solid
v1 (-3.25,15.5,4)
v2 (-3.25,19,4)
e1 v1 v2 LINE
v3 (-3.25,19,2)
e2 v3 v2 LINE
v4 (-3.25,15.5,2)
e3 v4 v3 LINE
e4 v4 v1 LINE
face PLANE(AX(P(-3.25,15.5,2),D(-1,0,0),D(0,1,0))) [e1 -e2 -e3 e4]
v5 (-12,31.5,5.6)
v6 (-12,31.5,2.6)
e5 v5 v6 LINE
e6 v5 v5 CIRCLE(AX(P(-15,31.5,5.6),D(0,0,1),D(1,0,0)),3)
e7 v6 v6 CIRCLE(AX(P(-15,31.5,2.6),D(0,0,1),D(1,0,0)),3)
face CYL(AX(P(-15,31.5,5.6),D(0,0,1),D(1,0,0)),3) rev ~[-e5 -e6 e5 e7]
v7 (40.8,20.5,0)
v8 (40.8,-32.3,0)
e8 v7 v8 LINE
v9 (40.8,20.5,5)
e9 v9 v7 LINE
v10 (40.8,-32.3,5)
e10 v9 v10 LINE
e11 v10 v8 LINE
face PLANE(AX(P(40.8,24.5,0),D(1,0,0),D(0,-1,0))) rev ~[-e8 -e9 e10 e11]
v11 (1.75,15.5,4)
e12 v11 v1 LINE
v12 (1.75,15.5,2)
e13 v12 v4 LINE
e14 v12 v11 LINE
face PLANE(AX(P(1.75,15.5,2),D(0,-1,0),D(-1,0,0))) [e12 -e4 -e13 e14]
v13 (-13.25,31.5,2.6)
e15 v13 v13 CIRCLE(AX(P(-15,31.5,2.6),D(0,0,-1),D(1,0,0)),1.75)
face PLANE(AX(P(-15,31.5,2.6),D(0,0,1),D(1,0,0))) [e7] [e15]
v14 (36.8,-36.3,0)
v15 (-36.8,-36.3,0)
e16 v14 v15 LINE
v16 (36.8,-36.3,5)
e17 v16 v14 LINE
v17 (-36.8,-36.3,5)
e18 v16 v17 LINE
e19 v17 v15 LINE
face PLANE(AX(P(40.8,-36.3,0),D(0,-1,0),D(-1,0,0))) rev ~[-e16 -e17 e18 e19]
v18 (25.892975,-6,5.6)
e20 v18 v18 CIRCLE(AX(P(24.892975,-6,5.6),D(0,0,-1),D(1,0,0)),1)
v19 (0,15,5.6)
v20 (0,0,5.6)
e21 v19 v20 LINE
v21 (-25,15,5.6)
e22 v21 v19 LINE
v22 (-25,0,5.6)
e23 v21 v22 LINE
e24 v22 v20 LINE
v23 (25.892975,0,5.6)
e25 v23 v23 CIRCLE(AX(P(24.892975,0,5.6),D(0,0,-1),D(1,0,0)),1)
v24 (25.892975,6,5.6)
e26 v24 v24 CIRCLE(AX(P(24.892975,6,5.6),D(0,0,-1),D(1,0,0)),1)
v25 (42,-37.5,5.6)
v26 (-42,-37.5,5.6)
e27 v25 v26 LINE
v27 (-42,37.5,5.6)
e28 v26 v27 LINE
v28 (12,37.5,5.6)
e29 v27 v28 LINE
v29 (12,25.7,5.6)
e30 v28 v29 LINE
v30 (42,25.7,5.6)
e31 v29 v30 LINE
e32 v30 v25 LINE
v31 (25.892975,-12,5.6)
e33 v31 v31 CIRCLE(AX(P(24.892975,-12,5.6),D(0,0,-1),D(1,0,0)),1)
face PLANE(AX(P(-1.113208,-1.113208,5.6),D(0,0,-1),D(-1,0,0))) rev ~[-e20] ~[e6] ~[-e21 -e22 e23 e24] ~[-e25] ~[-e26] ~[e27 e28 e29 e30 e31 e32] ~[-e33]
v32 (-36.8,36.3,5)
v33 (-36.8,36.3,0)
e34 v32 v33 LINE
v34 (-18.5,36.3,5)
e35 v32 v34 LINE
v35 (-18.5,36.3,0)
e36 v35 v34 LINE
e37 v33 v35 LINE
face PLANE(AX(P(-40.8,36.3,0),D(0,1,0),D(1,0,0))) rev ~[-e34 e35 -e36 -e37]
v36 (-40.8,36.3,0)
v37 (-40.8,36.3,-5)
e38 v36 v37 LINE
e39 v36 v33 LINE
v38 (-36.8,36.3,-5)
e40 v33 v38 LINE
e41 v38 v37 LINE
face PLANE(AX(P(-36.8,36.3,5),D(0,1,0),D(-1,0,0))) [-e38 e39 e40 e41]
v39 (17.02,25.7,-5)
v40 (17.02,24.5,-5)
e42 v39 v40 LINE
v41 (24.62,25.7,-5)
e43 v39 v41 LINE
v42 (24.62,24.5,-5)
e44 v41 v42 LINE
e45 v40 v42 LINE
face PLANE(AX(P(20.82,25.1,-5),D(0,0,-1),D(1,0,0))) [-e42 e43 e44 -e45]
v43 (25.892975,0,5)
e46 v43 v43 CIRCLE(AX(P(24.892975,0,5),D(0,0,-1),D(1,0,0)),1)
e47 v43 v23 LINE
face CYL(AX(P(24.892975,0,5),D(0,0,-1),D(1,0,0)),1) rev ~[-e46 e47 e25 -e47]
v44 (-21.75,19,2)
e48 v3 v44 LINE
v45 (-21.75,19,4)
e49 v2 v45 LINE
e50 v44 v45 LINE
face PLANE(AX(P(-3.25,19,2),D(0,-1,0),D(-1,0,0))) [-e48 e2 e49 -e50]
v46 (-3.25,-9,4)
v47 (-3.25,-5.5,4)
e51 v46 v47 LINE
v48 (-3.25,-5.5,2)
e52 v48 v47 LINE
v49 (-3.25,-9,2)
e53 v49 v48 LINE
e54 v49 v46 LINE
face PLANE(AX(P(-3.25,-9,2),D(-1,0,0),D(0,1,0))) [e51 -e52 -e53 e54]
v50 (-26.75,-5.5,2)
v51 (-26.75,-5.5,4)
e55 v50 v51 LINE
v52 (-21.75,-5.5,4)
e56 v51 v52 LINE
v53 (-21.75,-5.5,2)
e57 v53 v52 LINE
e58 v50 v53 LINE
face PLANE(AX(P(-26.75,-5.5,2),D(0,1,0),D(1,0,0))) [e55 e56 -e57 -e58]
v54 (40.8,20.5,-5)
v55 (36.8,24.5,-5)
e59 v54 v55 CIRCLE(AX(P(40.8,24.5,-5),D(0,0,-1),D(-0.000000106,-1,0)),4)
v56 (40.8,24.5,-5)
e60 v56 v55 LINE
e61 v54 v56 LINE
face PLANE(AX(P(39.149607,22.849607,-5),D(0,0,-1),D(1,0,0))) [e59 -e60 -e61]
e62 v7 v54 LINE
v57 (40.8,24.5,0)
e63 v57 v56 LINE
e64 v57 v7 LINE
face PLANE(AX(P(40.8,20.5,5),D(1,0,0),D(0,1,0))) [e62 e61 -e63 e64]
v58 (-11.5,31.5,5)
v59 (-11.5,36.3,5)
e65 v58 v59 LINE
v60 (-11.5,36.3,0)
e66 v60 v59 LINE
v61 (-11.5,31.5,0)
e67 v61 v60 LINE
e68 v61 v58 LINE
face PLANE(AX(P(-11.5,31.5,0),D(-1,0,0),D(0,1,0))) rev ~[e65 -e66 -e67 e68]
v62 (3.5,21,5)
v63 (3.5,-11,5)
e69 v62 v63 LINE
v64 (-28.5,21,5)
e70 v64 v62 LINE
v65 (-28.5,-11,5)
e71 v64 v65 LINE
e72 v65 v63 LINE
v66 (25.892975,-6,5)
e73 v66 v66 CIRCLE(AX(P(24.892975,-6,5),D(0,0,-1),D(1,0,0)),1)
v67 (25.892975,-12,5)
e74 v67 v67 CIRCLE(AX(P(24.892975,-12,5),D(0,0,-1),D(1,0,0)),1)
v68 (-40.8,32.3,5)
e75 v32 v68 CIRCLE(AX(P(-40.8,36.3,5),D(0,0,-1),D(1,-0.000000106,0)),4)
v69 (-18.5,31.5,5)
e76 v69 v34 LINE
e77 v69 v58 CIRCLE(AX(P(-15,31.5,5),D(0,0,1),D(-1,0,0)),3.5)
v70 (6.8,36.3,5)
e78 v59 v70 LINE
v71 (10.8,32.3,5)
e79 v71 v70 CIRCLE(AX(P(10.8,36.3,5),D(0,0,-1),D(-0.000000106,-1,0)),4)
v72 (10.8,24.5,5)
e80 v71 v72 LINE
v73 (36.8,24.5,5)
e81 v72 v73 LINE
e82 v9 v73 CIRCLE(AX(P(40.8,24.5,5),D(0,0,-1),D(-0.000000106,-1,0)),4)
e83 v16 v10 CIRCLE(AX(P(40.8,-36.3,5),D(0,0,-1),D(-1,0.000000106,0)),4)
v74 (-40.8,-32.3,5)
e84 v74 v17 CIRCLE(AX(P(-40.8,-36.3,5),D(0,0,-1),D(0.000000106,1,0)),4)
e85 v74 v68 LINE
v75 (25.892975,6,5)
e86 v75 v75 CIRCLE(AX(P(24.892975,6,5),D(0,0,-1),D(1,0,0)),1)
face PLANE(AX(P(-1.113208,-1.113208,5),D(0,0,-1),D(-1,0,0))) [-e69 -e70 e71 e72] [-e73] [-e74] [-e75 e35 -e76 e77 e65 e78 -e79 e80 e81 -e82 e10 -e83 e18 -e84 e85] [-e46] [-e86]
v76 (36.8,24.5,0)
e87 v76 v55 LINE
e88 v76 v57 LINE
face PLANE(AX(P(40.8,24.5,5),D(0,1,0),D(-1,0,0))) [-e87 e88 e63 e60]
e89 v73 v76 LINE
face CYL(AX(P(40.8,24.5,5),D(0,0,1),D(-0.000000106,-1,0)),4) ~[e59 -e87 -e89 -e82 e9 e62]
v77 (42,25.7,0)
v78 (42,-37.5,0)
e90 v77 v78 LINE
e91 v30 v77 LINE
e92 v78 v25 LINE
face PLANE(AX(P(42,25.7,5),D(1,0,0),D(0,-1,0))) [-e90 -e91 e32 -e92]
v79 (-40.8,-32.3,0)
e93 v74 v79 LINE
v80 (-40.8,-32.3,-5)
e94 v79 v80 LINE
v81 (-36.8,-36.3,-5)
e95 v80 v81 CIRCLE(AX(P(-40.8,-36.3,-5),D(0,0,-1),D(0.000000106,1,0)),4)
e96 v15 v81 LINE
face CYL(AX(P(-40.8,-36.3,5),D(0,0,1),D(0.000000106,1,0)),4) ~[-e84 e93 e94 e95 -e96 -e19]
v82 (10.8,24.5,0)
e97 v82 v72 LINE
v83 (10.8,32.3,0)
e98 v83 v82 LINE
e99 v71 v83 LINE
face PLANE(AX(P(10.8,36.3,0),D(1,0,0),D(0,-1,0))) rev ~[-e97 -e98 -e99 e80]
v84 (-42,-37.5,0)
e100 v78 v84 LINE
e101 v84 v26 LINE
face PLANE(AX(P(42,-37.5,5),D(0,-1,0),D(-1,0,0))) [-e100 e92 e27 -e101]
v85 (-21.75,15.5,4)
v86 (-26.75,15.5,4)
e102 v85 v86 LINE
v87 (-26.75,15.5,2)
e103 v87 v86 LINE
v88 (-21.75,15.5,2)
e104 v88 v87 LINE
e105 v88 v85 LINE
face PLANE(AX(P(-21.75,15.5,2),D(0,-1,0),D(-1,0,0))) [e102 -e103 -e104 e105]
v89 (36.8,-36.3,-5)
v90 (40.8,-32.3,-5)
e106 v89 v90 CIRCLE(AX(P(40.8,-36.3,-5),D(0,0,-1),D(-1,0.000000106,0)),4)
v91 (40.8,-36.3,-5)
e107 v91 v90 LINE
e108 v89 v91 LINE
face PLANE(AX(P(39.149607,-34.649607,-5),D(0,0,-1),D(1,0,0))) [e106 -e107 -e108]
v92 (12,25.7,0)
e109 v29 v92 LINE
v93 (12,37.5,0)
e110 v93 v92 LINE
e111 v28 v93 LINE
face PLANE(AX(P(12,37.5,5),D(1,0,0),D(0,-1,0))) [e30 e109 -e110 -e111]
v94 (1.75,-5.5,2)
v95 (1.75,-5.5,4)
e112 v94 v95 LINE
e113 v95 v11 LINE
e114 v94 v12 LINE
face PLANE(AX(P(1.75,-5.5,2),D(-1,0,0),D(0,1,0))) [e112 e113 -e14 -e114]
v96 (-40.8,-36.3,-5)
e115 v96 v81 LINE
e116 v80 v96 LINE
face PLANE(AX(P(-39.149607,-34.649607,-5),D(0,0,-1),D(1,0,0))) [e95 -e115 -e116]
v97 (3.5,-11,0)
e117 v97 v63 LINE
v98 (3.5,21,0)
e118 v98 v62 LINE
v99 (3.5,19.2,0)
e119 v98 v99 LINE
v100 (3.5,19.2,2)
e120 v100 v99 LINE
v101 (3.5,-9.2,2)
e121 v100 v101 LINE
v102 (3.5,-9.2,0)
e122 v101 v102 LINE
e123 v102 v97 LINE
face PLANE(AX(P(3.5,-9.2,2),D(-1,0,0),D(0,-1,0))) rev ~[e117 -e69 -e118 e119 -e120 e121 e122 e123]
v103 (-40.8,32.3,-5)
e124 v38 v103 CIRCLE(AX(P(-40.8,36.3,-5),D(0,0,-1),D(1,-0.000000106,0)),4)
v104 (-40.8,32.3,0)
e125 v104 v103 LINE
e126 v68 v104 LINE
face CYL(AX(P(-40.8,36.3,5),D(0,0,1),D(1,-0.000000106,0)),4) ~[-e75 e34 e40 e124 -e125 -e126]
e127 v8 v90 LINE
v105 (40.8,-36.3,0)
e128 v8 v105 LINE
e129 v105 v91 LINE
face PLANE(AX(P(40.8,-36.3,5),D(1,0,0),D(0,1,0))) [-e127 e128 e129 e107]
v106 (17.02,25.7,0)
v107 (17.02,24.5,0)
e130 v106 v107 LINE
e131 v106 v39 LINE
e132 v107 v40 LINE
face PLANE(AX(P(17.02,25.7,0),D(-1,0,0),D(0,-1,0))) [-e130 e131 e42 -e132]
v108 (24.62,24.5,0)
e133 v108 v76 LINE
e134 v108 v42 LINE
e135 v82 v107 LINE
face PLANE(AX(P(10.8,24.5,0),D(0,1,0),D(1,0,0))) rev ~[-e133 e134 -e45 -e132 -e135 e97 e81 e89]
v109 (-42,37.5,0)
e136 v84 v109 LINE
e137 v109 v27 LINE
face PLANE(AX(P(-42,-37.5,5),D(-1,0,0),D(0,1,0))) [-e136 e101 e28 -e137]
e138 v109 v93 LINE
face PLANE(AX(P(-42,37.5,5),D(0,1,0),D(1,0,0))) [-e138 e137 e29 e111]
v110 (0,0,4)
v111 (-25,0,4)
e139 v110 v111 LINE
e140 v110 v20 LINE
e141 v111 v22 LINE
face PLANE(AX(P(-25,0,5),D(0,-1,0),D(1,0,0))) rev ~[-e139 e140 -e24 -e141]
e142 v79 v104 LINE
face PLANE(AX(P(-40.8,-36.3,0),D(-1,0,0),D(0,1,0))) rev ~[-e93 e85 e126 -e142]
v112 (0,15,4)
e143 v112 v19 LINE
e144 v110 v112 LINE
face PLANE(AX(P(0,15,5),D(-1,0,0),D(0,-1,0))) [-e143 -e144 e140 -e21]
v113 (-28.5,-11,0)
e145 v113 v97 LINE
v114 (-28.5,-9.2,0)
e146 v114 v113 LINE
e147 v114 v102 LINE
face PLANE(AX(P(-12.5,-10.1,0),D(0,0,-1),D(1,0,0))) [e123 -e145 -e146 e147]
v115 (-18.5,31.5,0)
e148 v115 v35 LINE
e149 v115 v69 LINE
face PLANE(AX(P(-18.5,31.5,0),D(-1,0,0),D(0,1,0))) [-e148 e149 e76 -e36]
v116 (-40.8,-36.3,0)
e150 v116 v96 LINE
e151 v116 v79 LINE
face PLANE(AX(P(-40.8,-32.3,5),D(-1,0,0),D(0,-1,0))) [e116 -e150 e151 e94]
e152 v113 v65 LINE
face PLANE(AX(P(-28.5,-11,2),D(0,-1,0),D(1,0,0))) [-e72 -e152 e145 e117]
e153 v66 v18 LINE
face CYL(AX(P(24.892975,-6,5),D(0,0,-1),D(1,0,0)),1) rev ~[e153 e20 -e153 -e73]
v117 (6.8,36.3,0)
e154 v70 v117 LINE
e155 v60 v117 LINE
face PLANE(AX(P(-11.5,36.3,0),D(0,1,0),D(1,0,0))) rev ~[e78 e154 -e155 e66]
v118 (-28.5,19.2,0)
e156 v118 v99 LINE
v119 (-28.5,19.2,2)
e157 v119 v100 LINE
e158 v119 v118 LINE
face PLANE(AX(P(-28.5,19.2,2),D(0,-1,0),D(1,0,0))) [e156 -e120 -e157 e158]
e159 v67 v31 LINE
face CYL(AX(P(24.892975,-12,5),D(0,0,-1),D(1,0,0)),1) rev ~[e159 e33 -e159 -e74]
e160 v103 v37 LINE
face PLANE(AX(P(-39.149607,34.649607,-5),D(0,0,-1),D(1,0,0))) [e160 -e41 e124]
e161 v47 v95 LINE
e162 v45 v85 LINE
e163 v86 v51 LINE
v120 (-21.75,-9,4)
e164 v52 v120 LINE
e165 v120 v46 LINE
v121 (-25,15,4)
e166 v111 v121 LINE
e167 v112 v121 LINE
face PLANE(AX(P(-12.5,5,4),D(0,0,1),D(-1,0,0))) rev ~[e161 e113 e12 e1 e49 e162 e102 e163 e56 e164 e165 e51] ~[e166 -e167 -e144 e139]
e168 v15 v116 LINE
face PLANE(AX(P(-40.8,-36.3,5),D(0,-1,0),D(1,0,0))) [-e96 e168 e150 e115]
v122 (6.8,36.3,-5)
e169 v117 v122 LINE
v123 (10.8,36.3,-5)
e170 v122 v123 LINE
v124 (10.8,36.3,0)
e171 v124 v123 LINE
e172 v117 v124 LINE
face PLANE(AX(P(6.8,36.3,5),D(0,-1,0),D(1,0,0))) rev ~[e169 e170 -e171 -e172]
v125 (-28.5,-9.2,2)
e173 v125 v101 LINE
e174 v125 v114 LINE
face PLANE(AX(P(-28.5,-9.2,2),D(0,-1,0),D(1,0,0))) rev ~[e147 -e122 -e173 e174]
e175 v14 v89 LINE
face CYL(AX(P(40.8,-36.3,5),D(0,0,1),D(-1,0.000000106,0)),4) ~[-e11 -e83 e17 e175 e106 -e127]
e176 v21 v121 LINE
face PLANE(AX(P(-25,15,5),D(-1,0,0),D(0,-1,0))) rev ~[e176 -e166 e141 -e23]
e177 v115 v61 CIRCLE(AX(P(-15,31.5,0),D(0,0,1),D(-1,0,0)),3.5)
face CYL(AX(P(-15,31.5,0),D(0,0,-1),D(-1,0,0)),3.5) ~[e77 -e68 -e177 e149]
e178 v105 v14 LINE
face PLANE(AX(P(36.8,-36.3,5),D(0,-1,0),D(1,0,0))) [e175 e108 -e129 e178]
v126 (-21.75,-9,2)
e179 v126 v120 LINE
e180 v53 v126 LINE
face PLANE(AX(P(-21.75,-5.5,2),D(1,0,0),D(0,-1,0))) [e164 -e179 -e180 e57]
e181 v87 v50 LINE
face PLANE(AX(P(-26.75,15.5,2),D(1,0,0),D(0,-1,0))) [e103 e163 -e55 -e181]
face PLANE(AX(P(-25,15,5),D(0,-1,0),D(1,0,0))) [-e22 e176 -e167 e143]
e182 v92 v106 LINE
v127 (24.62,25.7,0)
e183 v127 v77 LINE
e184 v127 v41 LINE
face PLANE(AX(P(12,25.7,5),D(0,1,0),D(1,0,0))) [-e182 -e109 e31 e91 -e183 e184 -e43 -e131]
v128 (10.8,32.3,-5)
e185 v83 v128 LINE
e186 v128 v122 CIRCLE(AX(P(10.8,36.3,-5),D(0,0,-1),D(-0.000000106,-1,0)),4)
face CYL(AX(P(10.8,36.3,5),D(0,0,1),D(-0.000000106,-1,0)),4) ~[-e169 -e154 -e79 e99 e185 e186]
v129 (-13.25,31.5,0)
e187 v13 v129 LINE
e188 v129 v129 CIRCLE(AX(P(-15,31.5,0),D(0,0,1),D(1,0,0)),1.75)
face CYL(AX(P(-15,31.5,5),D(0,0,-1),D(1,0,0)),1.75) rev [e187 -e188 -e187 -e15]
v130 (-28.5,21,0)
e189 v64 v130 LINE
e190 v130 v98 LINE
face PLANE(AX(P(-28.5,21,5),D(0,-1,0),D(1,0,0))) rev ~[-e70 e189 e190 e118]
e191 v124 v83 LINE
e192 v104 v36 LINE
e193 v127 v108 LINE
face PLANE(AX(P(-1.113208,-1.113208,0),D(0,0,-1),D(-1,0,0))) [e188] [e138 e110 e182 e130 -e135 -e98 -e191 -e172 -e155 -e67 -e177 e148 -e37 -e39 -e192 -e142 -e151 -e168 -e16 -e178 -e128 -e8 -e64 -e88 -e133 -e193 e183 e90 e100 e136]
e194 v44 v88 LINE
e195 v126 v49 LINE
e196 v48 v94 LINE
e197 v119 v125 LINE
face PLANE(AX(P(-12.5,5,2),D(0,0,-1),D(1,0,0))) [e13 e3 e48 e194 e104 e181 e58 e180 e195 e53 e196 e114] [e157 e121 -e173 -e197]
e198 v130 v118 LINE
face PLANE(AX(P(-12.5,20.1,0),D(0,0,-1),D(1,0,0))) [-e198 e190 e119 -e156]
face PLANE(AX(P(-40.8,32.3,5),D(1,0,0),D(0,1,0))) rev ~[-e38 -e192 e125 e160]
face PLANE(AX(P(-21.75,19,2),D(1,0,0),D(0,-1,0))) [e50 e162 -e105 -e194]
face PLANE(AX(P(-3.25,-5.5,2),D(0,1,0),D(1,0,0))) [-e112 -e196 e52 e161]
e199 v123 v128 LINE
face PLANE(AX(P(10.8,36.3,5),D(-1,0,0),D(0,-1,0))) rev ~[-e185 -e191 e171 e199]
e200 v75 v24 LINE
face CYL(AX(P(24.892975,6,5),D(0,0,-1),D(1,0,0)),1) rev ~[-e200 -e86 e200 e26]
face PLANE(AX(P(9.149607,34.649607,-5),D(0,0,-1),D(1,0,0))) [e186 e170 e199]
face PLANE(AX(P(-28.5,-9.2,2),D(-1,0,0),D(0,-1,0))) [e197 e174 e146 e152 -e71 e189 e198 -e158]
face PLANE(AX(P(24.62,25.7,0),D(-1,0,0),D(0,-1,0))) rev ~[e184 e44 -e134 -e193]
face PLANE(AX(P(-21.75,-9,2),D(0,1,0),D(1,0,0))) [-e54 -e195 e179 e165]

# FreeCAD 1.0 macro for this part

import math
import FreeCAD as App
import Part
import Sketcher
from FreeCAD import Vector


def add_polygon(sketch, points):
    """Adds a closed chain of lines whose ends are joined by coincident constraints."""
    first, n = sketch.GeometryCount, len(points)
    for a, b in zip(points, points[1:] + points[:1]):
        sketch.addGeometry(Part.LineSegment(App.Vector(*a, 0), App.Vector(*b, 0)), False)
    for i in range(n):
        sketch.addConstraint(Sketcher.Constraint("Coincident", first + i, 2, first + (i + 1) % n, 1))

doc = App.newDocument("Part")
params = doc.addObject("Spreadsheet::Sheet", "Params")
for row, (alias, value) in enumerate([
    ("sketch1_diameter", "3.5 mm"),
    ("sketch1_radius", "3.5 mm"),
    ("sketch1_width", "54 mm"),
    ("sketch1_width2", "84 mm"),
    ("sketch1_height", "75 mm"),
    ("pad1_length", "5 mm"),
    ("sketch2_diameter", "3.5 mm"),
    ("sketch2_width", "54 mm"),
    ("sketch2_width2", "84 mm"),
    ("sketch2_height", "75 mm"),
    ("sketch2_height2", "63.2 mm"),
    ("pad2_length", "0.6 mm"),
    ("sketch3_diameter", "6 mm"),
    ("pocket1_length", "3 mm"),
    ("sketch4_width", "25 mm"),
    ("sketch4_height", "15 mm"),
    ("pocket2_length", "5 mm"),
    ("sketch5_width", "32 mm"),
    ("sketch5_width2", "25 mm"),
    ("sketch5_height", "15 mm"),
    ("pad3_length", "3 mm"),
    ("sketch6_width", "5 mm"),
    ("sketch6_height", "21 mm"),
    ("sketch6_width2", "18.5 mm"),
    ("sketch6_height2", "3.5 mm"),
    ("pocket3_length", "2 mm"),
    ("sketch7_width", "32 mm"),
    ("sketch7_height", "1.8 mm"),
    ("pad4_length", "2 mm"),
    ("sketch8_width", "7.6 mm"),
    ("sketch8_height", "1.2 mm"),
    ("pad5_length", "5 mm"),
    ("sketch9_diameter", "2 mm"),
    ("sketch10_radius", "4 mm"),
    ("pad6_length", "10 mm"),
], start=1):
    params.set(f"A{row}", alias)
    params.set(f"B{row}", "=" + value)
    params.setAlias(f"B{row}", alias)

body = doc.addObject("PartDesign::Body", "Body")

# Sketch on XY plane
sketch1 = body.newObject("Sketcher::SketchObject", "Sketch")
sketch1.AttachmentSupport = (doc.getObject("XY_Plane"), [""])
sketch1.MapMode = "FlatFace"
add_polygon(sketch1, [(12, 37.5), (-42, 37.5), (-42, -37.5), (42, -37.5), (42, 25.7), (12, 25.7)])  # lines 0-5
sketch1.addGeometry(Part.ArcOfCircle(Part.Circle(Vector(-15, 31.5, 0), Vector(0, 0, 1), 3.5), math.radians(180), math.radians(360)), False)  # 6
sketch1.addGeometry(Part.LineSegment(Vector(-11.5, 31.5, 0), Vector(-11.5, 36.3, 0)), False)  # 7
sketch1.addGeometry(Part.LineSegment(Vector(-11.5, 36.3, 0), Vector(10.8, 36.3, 0)), False)  # 8
sketch1.addGeometry(Part.LineSegment(Vector(10.8, 36.3, 0), Vector(10.8, 24.5, 0)), False)  # 9
sketch1.addGeometry(Part.LineSegment(Vector(10.8, 24.5, 0), Vector(40.8, 24.5, 0)), False)  # 10
sketch1.addGeometry(Part.LineSegment(Vector(40.8, 24.5, 0), Vector(40.8, -36.3, 0)), False)  # 11
sketch1.addGeometry(Part.LineSegment(Vector(40.8, -36.3, 0), Vector(-40.8, -36.3, 0)), False)  # 12
sketch1.addGeometry(Part.LineSegment(Vector(-40.8, -36.3, 0), Vector(-40.8, 36.3, 0)), False)  # 13
sketch1.addGeometry(Part.LineSegment(Vector(-40.8, 36.3, 0), Vector(-18.5, 36.3, 0)), False)  # 14
sketch1.addGeometry(Part.LineSegment(Vector(-18.5, 36.3, 0), Vector(-18.5, 31.5, 0)), False)  # 15
sketch1.addGeometry(Part.Circle(Vector(-15, 31.5, 0), Vector(0, 0, 1), 1.75), False)  # 16
sketch1.addConstraint(Sketcher.Constraint("Tangent", 6, 2, 7, 1))
sketch1.addConstraint(Sketcher.Constraint("Coincident", 7, 2, 8, 1))
sketch1.addConstraint(Sketcher.Constraint("Coincident", 8, 2, 9, 1))
sketch1.addConstraint(Sketcher.Constraint("Coincident", 9, 2, 10, 1))
sketch1.addConstraint(Sketcher.Constraint("Coincident", 10, 2, 11, 1))
sketch1.addConstraint(Sketcher.Constraint("Coincident", 11, 2, 12, 1))
sketch1.addConstraint(Sketcher.Constraint("Coincident", 12, 2, 13, 1))
sketch1.addConstraint(Sketcher.Constraint("Coincident", 13, 2, 14, 1))
sketch1.addConstraint(Sketcher.Constraint("Coincident", 14, 2, 15, 1))
sketch1.addConstraint(Sketcher.Constraint("Tangent", 15, 2, 6, 1))
sketch1.addConstraint(Sketcher.Constraint("Horizontal", 0))
sketch1.addConstraint(Sketcher.Constraint("Vertical", 1))
sketch1.addConstraint(Sketcher.Constraint("Horizontal", 2))
sketch1.addConstraint(Sketcher.Constraint("Vertical", 3))
sketch1.addConstraint(Sketcher.Constraint("Horizontal", 4))
sketch1.addConstraint(Sketcher.Constraint("Vertical", 5))
sketch1.addConstraint(Sketcher.Constraint("Vertical", 7))
sketch1.addConstraint(Sketcher.Constraint("Horizontal", 8))
sketch1.addConstraint(Sketcher.Constraint("Vertical", 9))
sketch1.addConstraint(Sketcher.Constraint("Horizontal", 10))
sketch1.addConstraint(Sketcher.Constraint("Vertical", 11))
sketch1.addConstraint(Sketcher.Constraint("Horizontal", 12))
sketch1.addConstraint(Sketcher.Constraint("Vertical", 13))
sketch1.addConstraint(Sketcher.Constraint("Horizontal", 14))
sketch1.addConstraint(Sketcher.Constraint("Vertical", 15))
sketch1.addConstraint(Sketcher.Constraint("Coincident", 16, 3, 6, 3))
sketch1.addConstraint(Sketcher.Constraint("Symmetric", 0, 2, 2, 2, -1, 1))
sketch1.addConstraint(Sketcher.Constraint("Symmetric", 11, 2, 13, 2, -1, 1))
sketch1.addConstraint(Sketcher.Constraint("Horizontal", 8, 2, 13, 2))
sketch1.addConstraint(Sketcher.Constraint("Equal", 4, 10))
sketch1.addConstraint(Sketcher.Constraint("Equal", 8, 14))
sketch1.addConstraint(Sketcher.Constraint("Equal", 5, 9))
sketch1.addConstraint(Sketcher.Constraint("Diameter", 16, 3.5))
sketch1.addConstraint(Sketcher.Constraint("Radius", 6, 3.5))
sketch1.addConstraint(Sketcher.Constraint("DistanceX", 0, 2, 0, 1, 54.0))
sketch1.addConstraint(Sketcher.Constraint("DistanceX", 2, 1, 2, 2, 84.0))
sketch1.addConstraint(Sketcher.Constraint("DistanceY", 1, 2, 1, 1, 75.0))
sketch1.addConstraint(Sketcher.Constraint("DistanceX", 8, 1, 8, 2, 22.3))
sketch1.addConstraint(Sketcher.Constraint("DistanceY", 3, 1, 3, 2, 63.2))
sketch1.addConstraint(Sketcher.Constraint("DistanceY", 7, 1, 7, 2, 4.8))
sketch1.addConstraint(Sketcher.Constraint("DistanceY", 11, 2, 11, 1, 60.8))
sketch1.setExpression("Constraints[38]", "Params.sketch1_diameter")
sketch1.setExpression("Constraints[39]", "Params.sketch1_radius")
sketch1.setExpression("Constraints[40]", "Params.sketch1_width")
sketch1.setExpression("Constraints[41]", "Params.sketch1_width2")
sketch1.setExpression("Constraints[42]", "Params.sketch1_height")
pad1 = body.newObject("PartDesign::Pad", "Pad")
pad1.Profile = sketch1
pad1.setExpression("Length", "Params.pad1_length")

# Sketch on XY plane
sketch2 = body.newObject("Sketcher::SketchObject", "Sketch001")
sketch2.AttachmentSupport = (doc.getObject("XY_Plane"), [""])
sketch2.MapMode = "FlatFace"
sketch2.AttachmentOffset = App.Placement(Vector(0, 0, 5), App.Rotation())
add_polygon(sketch2, [(12, 37.5), (-42, 37.5), (-42, -37.5), (42, -37.5), (42, 25.7), (12, 25.7)])  # lines 0-5
sketch2.addGeometry(Part.Circle(Vector(-15, 31.5, 0), Vector(0, 0, 1), 1.75), False)  # 6
sketch2.addConstraint(Sketcher.Constraint("Horizontal", 0))
sketch2.addConstraint(Sketcher.Constraint("Vertical", 1))
sketch2.addConstraint(Sketcher.Constraint("Horizontal", 2))
sketch2.addConstraint(Sketcher.Constraint("Vertical", 3))
sketch2.addConstraint(Sketcher.Constraint("Horizontal", 4))
sketch2.addConstraint(Sketcher.Constraint("Vertical", 5))
sketch2.addConstraint(Sketcher.Constraint("Symmetric", 0, 2, 2, 2, -1, 1))
sketch2.addConstraint(Sketcher.Constraint("Diameter", 6, 3.5))
sketch2.addConstraint(Sketcher.Constraint("DistanceX", 0, 2, 0, 1, 54.0))
sketch2.addConstraint(Sketcher.Constraint("DistanceX", 2, 1, 2, 2, 84.0))
sketch2.addConstraint(Sketcher.Constraint("DistanceY", 1, 2, 1, 1, 75.0))
sketch2.addConstraint(Sketcher.Constraint("DistanceY", 3, 1, 3, 2, 63.2))
sketch2.addConstraint(Sketcher.Constraint("DistanceX", 6, 3, -1, 1, 15.0))
sketch2.addConstraint(Sketcher.Constraint("DistanceY", 6, 3, 0, 2, 6.0))
sketch2.setExpression("Constraints[13]", "Params.sketch2_diameter")
sketch2.setExpression("Constraints[14]", "Params.sketch2_width")
sketch2.setExpression("Constraints[15]", "Params.sketch2_width2")
sketch2.setExpression("Constraints[16]", "Params.sketch2_height")
sketch2.setExpression("Constraints[17]", "Params.sketch2_height2")
pad2 = body.newObject("PartDesign::Pad", "Pad001")
pad2.Profile = sketch2
pad2.setExpression("Length", "Params.pad2_length")

# Sketch on XY plane
sketch3 = body.newObject("Sketcher::SketchObject", "Sketch002")
sketch3.AttachmentSupport = (doc.getObject("XY_Plane"), [""])
sketch3.MapMode = "FlatFace"
sketch3.AttachmentOffset = App.Placement(Vector(0, 0, 5.6), App.Rotation())
sketch3.addGeometry(Part.Circle(Vector(-15, 31.5, 0), Vector(0, 0, 1), 3), False)
sketch3.addConstraint(Sketcher.Constraint("Diameter", 0, 6.0))
sketch3.addConstraint(Sketcher.Constraint("DistanceX", 0, 3, -1, 1, 15.0))
sketch3.addConstraint(Sketcher.Constraint("DistanceY", -1, 1, 0, 3, 31.5))
sketch3.setExpression("Constraints[0]", "Params.sketch3_diameter")
pocket1 = body.newObject("PartDesign::Pocket", "Pocket")
pocket1.Profile = sketch3
pocket1.setExpression("Length", "Params.pocket1_length")

# Sketch on XY plane
sketch4 = body.newObject("Sketcher::SketchObject", "Sketch003")
sketch4.AttachmentSupport = (doc.getObject("XY_Plane"), [""])
sketch4.MapMode = "FlatFace"
sketch4.AttachmentOffset = App.Placement(Vector(0, 0, 5), App.Rotation())
add_polygon(sketch4, [(-25, 0), (-25, 15), (0, 15), (0, 0)])  # lines 0-3
sketch4.addConstraint(Sketcher.Constraint("Vertical", 0))
sketch4.addConstraint(Sketcher.Constraint("Horizontal", 1))
sketch4.addConstraint(Sketcher.Constraint("Vertical", 2))
sketch4.addConstraint(Sketcher.Constraint("Horizontal", 3))
sketch4.addConstraint(Sketcher.Constraint("Coincident", 2, 2, -1, 1))
sketch4.addConstraint(Sketcher.Constraint("DistanceX", 1, 1, 1, 2, 25.0))
sketch4.addConstraint(Sketcher.Constraint("DistanceY", 0, 1, 0, 2, 15.0))
sketch4.setExpression("Constraints[9]", "Params.sketch4_width")
sketch4.setExpression("Constraints[10]", "Params.sketch4_height")
pocket2 = body.newObject("PartDesign::Pocket", "Pocket001")
pocket2.Profile = sketch4
pocket2.setExpression("Length", "Params.pocket2_length")
pocket2.Reversed = True

# Sketch on XY plane
sketch5 = body.newObject("Sketcher::SketchObject", "Sketch004")
sketch5.AttachmentSupport = (doc.getObject("XY_Plane"), [""])
sketch5.MapMode = "FlatFace"
sketch5.AttachmentOffset = App.Placement(Vector(0, 0, 5), App.Rotation())
add_polygon(sketch5, [(-28.5, -11), (-28.5, 21), (3.5, 21), (3.5, -11)])  # lines 0-3
add_polygon(sketch5, [(0, 15), (-25, 15), (-25, 0), (0, 0)])  # lines 4-7
sketch5.addConstraint(Sketcher.Constraint("Vertical", 0))
sketch5.addConstraint(Sketcher.Constraint("Horizontal", 1))
sketch5.addConstraint(Sketcher.Constraint("Vertical", 2))
sketch5.addConstraint(Sketcher.Constraint("Horizontal", 3))
sketch5.addConstraint(Sketcher.Constraint("Horizontal", 4))
sketch5.addConstraint(Sketcher.Constraint("Vertical", 5))
sketch5.addConstraint(Sketcher.Constraint("Horizontal", 6))
sketch5.addConstraint(Sketcher.Constraint("Vertical", 7))
sketch5.addConstraint(Sketcher.Constraint("Coincident", 6, 2, -1, 1))
sketch5.addConstraint(Sketcher.Constraint("Equal", 3, 0))
sketch5.addConstraint(Sketcher.Constraint("DistanceX", 1, 1, 1, 2, 32.0))
sketch5.addConstraint(Sketcher.Constraint("DistanceX", 4, 2, 4, 1, 25.0))
sketch5.addConstraint(Sketcher.Constraint("DistanceY", 5, 2, 5, 1, 15.0))
sketch5.addConstraint(Sketcher.Constraint("DistanceY", -1, 1, 0, 2, 21.0))
sketch5.addConstraint(Sketcher.Constraint("DistanceX", 0, 2, -1, 1, 28.5))
sketch5.setExpression("Constraints[18]", "Params.sketch5_width")
sketch5.setExpression("Constraints[19]", "Params.sketch5_width2")
sketch5.setExpression("Constraints[20]", "Params.sketch5_height")
pad3 = body.newObject("PartDesign::Pad", "Pad002")
pad3.Profile = sketch5
pad3.setExpression("Length", "Params.pad3_length")
pad3.Reversed = True

# Sketch on XY plane
sketch6 = body.newObject("Sketcher::SketchObject", "Sketch005")
sketch6.AttachmentSupport = (doc.getObject("XY_Plane"), [""])
sketch6.MapMode = "FlatFace"
sketch6.AttachmentOffset = App.Placement(Vector(0, 0, 2), App.Rotation())
add_polygon(sketch6, [(-26.75, -5.5), (-26.75, 15.5), (-21.75, 15.5), (-21.75, 19), (-3.25, 19), (-3.25, 15.5), (1.75, 15.5), (1.75, -5.5), (-3.25, -5.5), (-3.25, -9), (-21.75, -9), (-21.75, -5.5)])  # lines 0-11
sketch6.addConstraint(Sketcher.Constraint("Vertical", 0))
sketch6.addConstraint(Sketcher.Constraint("Horizontal", 1))
sketch6.addConstraint(Sketcher.Constraint("Vertical", 2))
sketch6.addConstraint(Sketcher.Constraint("Horizontal", 3))
sketch6.addConstraint(Sketcher.Constraint("Vertical", 4))
sketch6.addConstraint(Sketcher.Constraint("Horizontal", 5))
sketch6.addConstraint(Sketcher.Constraint("Vertical", 6))
sketch6.addConstraint(Sketcher.Constraint("Horizontal", 7))
sketch6.addConstraint(Sketcher.Constraint("Vertical", 8))
sketch6.addConstraint(Sketcher.Constraint("Horizontal", 9))
sketch6.addConstraint(Sketcher.Constraint("Vertical", 10))
sketch6.addConstraint(Sketcher.Constraint("Horizontal", 11))
sketch6.addConstraint(Sketcher.Constraint("Horizontal", 1, 2, 4, 2))
sketch6.addConstraint(Sketcher.Constraint("Horizontal", 7, 2, 10, 2))
sketch6.addConstraint(Sketcher.Constraint("Vertical", 4, 2, 7, 2))
sketch6.addConstraint(Sketcher.Constraint("Vertical", 2, 2, 9, 2))
sketch6.addConstraint(Sketcher.Constraint("Equal", 1, 5))
sketch6.addConstraint(Sketcher.Constraint("Equal", 4, 8))
sketch6.addConstraint(Sketcher.Constraint("DistanceX", 1, 1, 1, 2, 5.0))
sketch6.addConstraint(Sketcher.Constraint("DistanceY", 0, 1, 0, 2, 21.0))
sketch6.addConstraint(Sketcher.Constraint("DistanceX", 3, 1, 3, 2, 18.5))
sketch6.addConstraint(Sketcher.Constraint("DistanceY", 2, 1, 2, 2, 3.5))
sketch6.addConstraint(Sketcher.Constraint("DistanceY", -1, 1, 2, 2, 19.0))
sketch6.addConstraint(Sketcher.Constraint("DistanceX", 0, 2, -1, 1, 26.75))
sketch6.setExpression("Constraints[30]", "Params.sketch6_width")
sketch6.setExpression("Constraints[31]", "Params.sketch6_height")
sketch6.setExpression("Constraints[32]", "Params.sketch6_width2")
sketch6.setExpression("Constraints[33]", "Params.sketch6_height2")
pocket3 = body.newObject("PartDesign::Pocket", "Pocket002")
pocket3.Profile = sketch6
pocket3.setExpression("Length", "Params.pocket3_length")
pocket3.Reversed = True

# Sketch on XY plane
sketch7 = body.newObject("Sketcher::SketchObject", "Sketch006")
sketch7.AttachmentSupport = (doc.getObject("XY_Plane"), [""])
sketch7.MapMode = "FlatFace"
sketch7.AttachmentOffset = App.Placement(Vector(0, 0, 2), App.Rotation())
add_polygon(sketch7, [(-28.5, -11), (-28.5, -9.2), (3.5, -9.2), (3.5, -11)])  # lines 0-3
add_polygon(sketch7, [(-28.5, 19.2), (-28.5, 21), (3.5, 21), (3.5, 19.2)])  # lines 4-7
sketch7.addConstraint(Sketcher.Constraint("Vertical", 0))
sketch7.addConstraint(Sketcher.Constraint("Horizontal", 1))
sketch7.addConstraint(Sketcher.Constraint("Vertical", 2))
sketch7.addConstraint(Sketcher.Constraint("Horizontal", 3))
sketch7.addConstraint(Sketcher.Constraint("Vertical", 4))
sketch7.addConstraint(Sketcher.Constraint("Horizontal", 5))
sketch7.addConstraint(Sketcher.Constraint("Vertical", 6))
sketch7.addConstraint(Sketcher.Constraint("Horizontal", 7))
sketch7.addConstraint(Sketcher.Constraint("Vertical", 3, 2, 4, 2))
sketch7.addConstraint(Sketcher.Constraint("Vertical", 2, 2, 5, 2))
sketch7.addConstraint(Sketcher.Constraint("Equal", 2, 4))
sketch7.addConstraint(Sketcher.Constraint("DistanceX", 1, 1, 1, 2, 32.0))
sketch7.addConstraint(Sketcher.Constraint("DistanceY", 0, 1, 0, 2, 1.8))
sketch7.addConstraint(Sketcher.Constraint("DistanceY", 2, 2, -1, 1, 11.0))
sketch7.addConstraint(Sketcher.Constraint("DistanceY", -1, 1, 4, 2, 21.0))
sketch7.addConstraint(Sketcher.Constraint("DistanceX", 0, 2, -1, 1, 28.5))
sketch7.setExpression("Constraints[19]", "Params.sketch7_width")
sketch7.setExpression("Constraints[20]", "Params.sketch7_height")
pad4 = body.newObject("PartDesign::Pad", "Pad003")
pad4.Profile = sketch7
pad4.setExpression("Length", "Params.pad4_length")
pad4.Reversed = True

# Sketch on XY plane
sketch8 = body.newObject("Sketcher::SketchObject", "Sketch007")
sketch8.AttachmentSupport = (doc.getObject("XY_Plane"), [""])
sketch8.MapMode = "FlatFace"
add_polygon(sketch8, [(17.02, 24.5), (17.02, 25.7), (24.62, 25.7), (24.62, 24.5)])  # lines 0-3
sketch8.addConstraint(Sketcher.Constraint("Vertical", 0))
sketch8.addConstraint(Sketcher.Constraint("Horizontal", 1))
sketch8.addConstraint(Sketcher.Constraint("Vertical", 2))
sketch8.addConstraint(Sketcher.Constraint("Horizontal", 3))
sketch8.addConstraint(Sketcher.Constraint("DistanceX", 1, 1, 1, 2, 7.6))
sketch8.addConstraint(Sketcher.Constraint("DistanceY", 0, 1, 0, 2, 1.2))
sketch8.addConstraint(Sketcher.Constraint("DistanceY", -1, 1, 0, 2, 25.7))
sketch8.addConstraint(Sketcher.Constraint("DistanceX", -1, 1, 0, 2, 17.02))
sketch8.setExpression("Constraints[8]", "Params.sketch8_width")
sketch8.setExpression("Constraints[9]", "Params.sketch8_height")
pad5 = body.newObject("PartDesign::Pad", "Pad004")
pad5.Profile = sketch8
pad5.setExpression("Length", "Params.pad5_length")
pad5.Reversed = True

# Sketch on XY plane
sketch9 = body.newObject("Sketcher::SketchObject", "Sketch008")
sketch9.AttachmentSupport = (doc.getObject("XY_Plane"), [""])
sketch9.MapMode = "FlatFace"
sketch9.AttachmentOffset = App.Placement(Vector(0, 0, 5), App.Rotation())
sketch9.addGeometry(Part.Circle(Vector(24.892975, 0, 0), Vector(0, 0, 1), 1), False)
sketch9.addGeometry(Part.Circle(Vector(24.892975, 6, 0), Vector(0, 0, 1), 1), False)
sketch9.addGeometry(Part.Circle(Vector(24.892975, -6, 0), Vector(0, 0, 1), 1), False)
sketch9.addGeometry(Part.Circle(Vector(24.892975, -12, 0), Vector(0, 0, 1), 1), False)
sketch9.addConstraint(Sketcher.Constraint("Equal", 0, 1))
sketch9.addConstraint(Sketcher.Constraint("Equal", 1, 2))
sketch9.addConstraint(Sketcher.Constraint("Equal", 2, 3))
sketch9.addConstraint(Sketcher.Constraint("Symmetric", 1, 3, 2, 3, -1))
sketch9.addConstraint(Sketcher.Constraint("PointOnObject", 0, 3, -1))
sketch9.addConstraint(Sketcher.Constraint("Vertical", 0, 3, 1, 3))
sketch9.addConstraint(Sketcher.Constraint("Vertical", 2, 3, 3, 3))
sketch9.addConstraint(Sketcher.Constraint("Diameter", 0, 2.0))
sketch9.addConstraint(Sketcher.Constraint("DistanceY", -1, 1, 1, 3, 6.0))
sketch9.addConstraint(Sketcher.Constraint("DistanceY", 3, 3, -1, 1, 12.0))
sketch9.addConstraint(Sketcher.Constraint("DistanceX", -1, 1, 0, 3, 24.892975))
sketch9.setExpression("Constraints[7]", "Params.sketch9_diameter")
pocket4 = body.newObject("PartDesign::Pocket", "Pocket003")
pocket4.Profile = sketch9
pocket4.Type = "ThroughAll"
pocket4.Reversed = True

# Sketch on XY plane
sketch10 = body.newObject("Sketcher::SketchObject", "Sketch009")
sketch10.AttachmentSupport = (doc.getObject("XY_Plane"), [""])
sketch10.MapMode = "FlatFace"
sketch10.AttachmentOffset = App.Placement(Vector(0, 0, 5), App.Rotation())
sketch10.addGeometry(Part.ArcOfCircle(Part.Circle(Vector(10.8, 36.3, 0), Vector(0, 0, 1), 4), math.radians(-179.999994), math.radians(-90.000006)), False)
sketch10.addGeometry(Part.LineSegment(Vector(6.8, 36.3, 0), Vector(10.8, 36.3, 0)), False)
sketch10.addGeometry(Part.LineSegment(Vector(10.8, 36.3, 0), Vector(10.8, 32.3, 0)), False)
sketch10.addGeometry(Part.ArcOfCircle(Part.Circle(Vector(40.8, 24.5, 0), Vector(0, 0, 1), 4), math.radians(-179.999994), math.radians(-90.000006)), False)
sketch10.addGeometry(Part.LineSegment(Vector(36.8, 24.5, 0), Vector(40.8, 24.5, 0)), False)
sketch10.addGeometry(Part.LineSegment(Vector(40.8, 24.5, 0), Vector(40.8, 20.5, 0)), False)
sketch10.addGeometry(Part.ArcOfCircle(Part.Circle(Vector(40.8, -36.3, 0), Vector(0, 0, 1), 4), math.radians(90.000006), math.radians(179.999994)), False)
sketch10.addGeometry(Part.LineSegment(Vector(40.8, -32.3, 0), Vector(40.8, -36.3, 0)), False)
sketch10.addGeometry(Part.LineSegment(Vector(40.8, -36.3, 0), Vector(36.8, -36.3, 0)), False)
sketch10.addGeometry(Part.ArcOfCircle(Part.Circle(Vector(-40.8, -36.3, 0), Vector(0, 0, 1), 4), math.radians(0.000006), math.radians(89.999994)), False)
sketch10.addGeometry(Part.LineSegment(Vector(-36.8, -36.3, 0), Vector(-40.8, -36.3, 0)), False)
sketch10.addGeometry(Part.LineSegment(Vector(-40.8, -36.3, 0), Vector(-40.8, -32.3, 0)), False)
sketch10.addGeometry(Part.ArcOfCircle(Part.Circle(Vector(-40.8, 36.3, 0), Vector(0, 0, 1), 4), math.radians(-89.999994), math.radians(-0.000006)), False)
sketch10.addGeometry(Part.LineSegment(Vector(-40.8, 32.3, 0), Vector(-40.8, 36.3, 0)), False)
sketch10.addGeometry(Part.LineSegment(Vector(-40.8, 36.3, 0), Vector(-36.8, 36.3, 0)), False)
sketch10.addConstraint(Sketcher.Constraint("Coincident", 0, 1, 1, 1))
sketch10.addConstraint(Sketcher.Constraint("Coincident", 1, 2, 2, 1))
sketch10.addConstraint(Sketcher.Constraint("Coincident", 2, 2, 0, 2))
sketch10.addConstraint(Sketcher.Constraint("Coincident", 3, 1, 4, 1))
sketch10.addConstraint(Sketcher.Constraint("Coincident", 4, 2, 5, 1))
sketch10.addConstraint(Sketcher.Constraint("Coincident", 5, 2, 3, 2))
sketch10.addConstraint(Sketcher.Constraint("Coincident", 6, 1, 7, 1))
sketch10.addConstraint(Sketcher.Constraint("Coincident", 7, 2, 8, 1))
sketch10.addConstraint(Sketcher.Constraint("Coincident", 8, 2, 6, 2))
sketch10.addConstraint(Sketcher.Constraint("Coincident", 9, 1, 10, 1))
sketch10.addConstraint(Sketcher.Constraint("Coincident", 10, 2, 11, 1))
sketch10.addConstraint(Sketcher.Constraint("Coincident", 11, 2, 9, 2))
sketch10.addConstraint(Sketcher.Constraint("Coincident", 12, 1, 13, 1))
sketch10.addConstraint(Sketcher.Constraint("Coincident", 13, 2, 14, 1))
sketch10.addConstraint(Sketcher.Constraint("Coincident", 14, 2, 12, 2))
sketch10.addConstraint(Sketcher.Constraint("Horizontal", 1))
sketch10.addConstraint(Sketcher.Constraint("Vertical", 2))
sketch10.addConstraint(Sketcher.Constraint("Horizontal", 4))
sketch10.addConstraint(Sketcher.Constraint("Vertical", 5))
sketch10.addConstraint(Sketcher.Constraint("Vertical", 7))
sketch10.addConstraint(Sketcher.Constraint("Horizontal", 8))
sketch10.addConstraint(Sketcher.Constraint("Horizontal", 10))
sketch10.addConstraint(Sketcher.Constraint("Vertical", 11))
sketch10.addConstraint(Sketcher.Constraint("Vertical", 13))
sketch10.addConstraint(Sketcher.Constraint("Horizontal", 14))
sketch10.addConstraint(Sketcher.Constraint("Coincident", 1, 2, 0, 3))
sketch10.addConstraint(Sketcher.Constraint("Coincident", 4, 2, 3, 3))
sketch10.addConstraint(Sketcher.Constraint("Coincident", 7, 2, 6, 3))
sketch10.addConstraint(Sketcher.Constraint("Coincident", 10, 2, 9, 3))
sketch10.addConstraint(Sketcher.Constraint("Coincident", 13, 2, 12, 3))
sketch10.addConstraint(Sketcher.Constraint("Equal", 0, 3))
sketch10.addConstraint(Sketcher.Constraint("Equal", 3, 6))
sketch10.addConstraint(Sketcher.Constraint("Equal", 6, 9))
sketch10.addConstraint(Sketcher.Constraint("Equal", 9, 12))
sketch10.addConstraint(Sketcher.Constraint("Symmetric", 6, 3, 12, 3, -1, 1))
sketch10.addConstraint(Sketcher.Constraint("Symmetric", 6, 3, 9, 3, -2))
sketch10.addConstraint(Sketcher.Constraint("Horizontal", 0, 3, 12, 3))
sketch10.addConstraint(Sketcher.Constraint("Vertical", 3, 3, 6, 3))
sketch10.addConstraint(Sketcher.Constraint("Radius", 0, 4.0))
sketch10.addConstraint(Sketcher.Constraint("DistanceX", 0, 3, 3, 3, 30.0))
sketch10.addConstraint(Sketcher.Constraint("DistanceX", -1, 1, 0, 3, 10.8))
sketch10.addConstraint(Sketcher.Constraint("DistanceY", -1, 1, 0, 3, 36.3))
sketch10.addConstraint(Sketcher.Constraint("DistanceY", -1, 1, 3, 3, 24.5))
sketch10.setExpression("Constraints[38]", "Params.sketch10_radius")
pad6 = body.newObject("PartDesign::Pad", "Pad005")
pad6.Profile = sketch10
pad6.setExpression("Length", "Params.pad6_length")
pad6.Reversed = True

doc.recompute()
